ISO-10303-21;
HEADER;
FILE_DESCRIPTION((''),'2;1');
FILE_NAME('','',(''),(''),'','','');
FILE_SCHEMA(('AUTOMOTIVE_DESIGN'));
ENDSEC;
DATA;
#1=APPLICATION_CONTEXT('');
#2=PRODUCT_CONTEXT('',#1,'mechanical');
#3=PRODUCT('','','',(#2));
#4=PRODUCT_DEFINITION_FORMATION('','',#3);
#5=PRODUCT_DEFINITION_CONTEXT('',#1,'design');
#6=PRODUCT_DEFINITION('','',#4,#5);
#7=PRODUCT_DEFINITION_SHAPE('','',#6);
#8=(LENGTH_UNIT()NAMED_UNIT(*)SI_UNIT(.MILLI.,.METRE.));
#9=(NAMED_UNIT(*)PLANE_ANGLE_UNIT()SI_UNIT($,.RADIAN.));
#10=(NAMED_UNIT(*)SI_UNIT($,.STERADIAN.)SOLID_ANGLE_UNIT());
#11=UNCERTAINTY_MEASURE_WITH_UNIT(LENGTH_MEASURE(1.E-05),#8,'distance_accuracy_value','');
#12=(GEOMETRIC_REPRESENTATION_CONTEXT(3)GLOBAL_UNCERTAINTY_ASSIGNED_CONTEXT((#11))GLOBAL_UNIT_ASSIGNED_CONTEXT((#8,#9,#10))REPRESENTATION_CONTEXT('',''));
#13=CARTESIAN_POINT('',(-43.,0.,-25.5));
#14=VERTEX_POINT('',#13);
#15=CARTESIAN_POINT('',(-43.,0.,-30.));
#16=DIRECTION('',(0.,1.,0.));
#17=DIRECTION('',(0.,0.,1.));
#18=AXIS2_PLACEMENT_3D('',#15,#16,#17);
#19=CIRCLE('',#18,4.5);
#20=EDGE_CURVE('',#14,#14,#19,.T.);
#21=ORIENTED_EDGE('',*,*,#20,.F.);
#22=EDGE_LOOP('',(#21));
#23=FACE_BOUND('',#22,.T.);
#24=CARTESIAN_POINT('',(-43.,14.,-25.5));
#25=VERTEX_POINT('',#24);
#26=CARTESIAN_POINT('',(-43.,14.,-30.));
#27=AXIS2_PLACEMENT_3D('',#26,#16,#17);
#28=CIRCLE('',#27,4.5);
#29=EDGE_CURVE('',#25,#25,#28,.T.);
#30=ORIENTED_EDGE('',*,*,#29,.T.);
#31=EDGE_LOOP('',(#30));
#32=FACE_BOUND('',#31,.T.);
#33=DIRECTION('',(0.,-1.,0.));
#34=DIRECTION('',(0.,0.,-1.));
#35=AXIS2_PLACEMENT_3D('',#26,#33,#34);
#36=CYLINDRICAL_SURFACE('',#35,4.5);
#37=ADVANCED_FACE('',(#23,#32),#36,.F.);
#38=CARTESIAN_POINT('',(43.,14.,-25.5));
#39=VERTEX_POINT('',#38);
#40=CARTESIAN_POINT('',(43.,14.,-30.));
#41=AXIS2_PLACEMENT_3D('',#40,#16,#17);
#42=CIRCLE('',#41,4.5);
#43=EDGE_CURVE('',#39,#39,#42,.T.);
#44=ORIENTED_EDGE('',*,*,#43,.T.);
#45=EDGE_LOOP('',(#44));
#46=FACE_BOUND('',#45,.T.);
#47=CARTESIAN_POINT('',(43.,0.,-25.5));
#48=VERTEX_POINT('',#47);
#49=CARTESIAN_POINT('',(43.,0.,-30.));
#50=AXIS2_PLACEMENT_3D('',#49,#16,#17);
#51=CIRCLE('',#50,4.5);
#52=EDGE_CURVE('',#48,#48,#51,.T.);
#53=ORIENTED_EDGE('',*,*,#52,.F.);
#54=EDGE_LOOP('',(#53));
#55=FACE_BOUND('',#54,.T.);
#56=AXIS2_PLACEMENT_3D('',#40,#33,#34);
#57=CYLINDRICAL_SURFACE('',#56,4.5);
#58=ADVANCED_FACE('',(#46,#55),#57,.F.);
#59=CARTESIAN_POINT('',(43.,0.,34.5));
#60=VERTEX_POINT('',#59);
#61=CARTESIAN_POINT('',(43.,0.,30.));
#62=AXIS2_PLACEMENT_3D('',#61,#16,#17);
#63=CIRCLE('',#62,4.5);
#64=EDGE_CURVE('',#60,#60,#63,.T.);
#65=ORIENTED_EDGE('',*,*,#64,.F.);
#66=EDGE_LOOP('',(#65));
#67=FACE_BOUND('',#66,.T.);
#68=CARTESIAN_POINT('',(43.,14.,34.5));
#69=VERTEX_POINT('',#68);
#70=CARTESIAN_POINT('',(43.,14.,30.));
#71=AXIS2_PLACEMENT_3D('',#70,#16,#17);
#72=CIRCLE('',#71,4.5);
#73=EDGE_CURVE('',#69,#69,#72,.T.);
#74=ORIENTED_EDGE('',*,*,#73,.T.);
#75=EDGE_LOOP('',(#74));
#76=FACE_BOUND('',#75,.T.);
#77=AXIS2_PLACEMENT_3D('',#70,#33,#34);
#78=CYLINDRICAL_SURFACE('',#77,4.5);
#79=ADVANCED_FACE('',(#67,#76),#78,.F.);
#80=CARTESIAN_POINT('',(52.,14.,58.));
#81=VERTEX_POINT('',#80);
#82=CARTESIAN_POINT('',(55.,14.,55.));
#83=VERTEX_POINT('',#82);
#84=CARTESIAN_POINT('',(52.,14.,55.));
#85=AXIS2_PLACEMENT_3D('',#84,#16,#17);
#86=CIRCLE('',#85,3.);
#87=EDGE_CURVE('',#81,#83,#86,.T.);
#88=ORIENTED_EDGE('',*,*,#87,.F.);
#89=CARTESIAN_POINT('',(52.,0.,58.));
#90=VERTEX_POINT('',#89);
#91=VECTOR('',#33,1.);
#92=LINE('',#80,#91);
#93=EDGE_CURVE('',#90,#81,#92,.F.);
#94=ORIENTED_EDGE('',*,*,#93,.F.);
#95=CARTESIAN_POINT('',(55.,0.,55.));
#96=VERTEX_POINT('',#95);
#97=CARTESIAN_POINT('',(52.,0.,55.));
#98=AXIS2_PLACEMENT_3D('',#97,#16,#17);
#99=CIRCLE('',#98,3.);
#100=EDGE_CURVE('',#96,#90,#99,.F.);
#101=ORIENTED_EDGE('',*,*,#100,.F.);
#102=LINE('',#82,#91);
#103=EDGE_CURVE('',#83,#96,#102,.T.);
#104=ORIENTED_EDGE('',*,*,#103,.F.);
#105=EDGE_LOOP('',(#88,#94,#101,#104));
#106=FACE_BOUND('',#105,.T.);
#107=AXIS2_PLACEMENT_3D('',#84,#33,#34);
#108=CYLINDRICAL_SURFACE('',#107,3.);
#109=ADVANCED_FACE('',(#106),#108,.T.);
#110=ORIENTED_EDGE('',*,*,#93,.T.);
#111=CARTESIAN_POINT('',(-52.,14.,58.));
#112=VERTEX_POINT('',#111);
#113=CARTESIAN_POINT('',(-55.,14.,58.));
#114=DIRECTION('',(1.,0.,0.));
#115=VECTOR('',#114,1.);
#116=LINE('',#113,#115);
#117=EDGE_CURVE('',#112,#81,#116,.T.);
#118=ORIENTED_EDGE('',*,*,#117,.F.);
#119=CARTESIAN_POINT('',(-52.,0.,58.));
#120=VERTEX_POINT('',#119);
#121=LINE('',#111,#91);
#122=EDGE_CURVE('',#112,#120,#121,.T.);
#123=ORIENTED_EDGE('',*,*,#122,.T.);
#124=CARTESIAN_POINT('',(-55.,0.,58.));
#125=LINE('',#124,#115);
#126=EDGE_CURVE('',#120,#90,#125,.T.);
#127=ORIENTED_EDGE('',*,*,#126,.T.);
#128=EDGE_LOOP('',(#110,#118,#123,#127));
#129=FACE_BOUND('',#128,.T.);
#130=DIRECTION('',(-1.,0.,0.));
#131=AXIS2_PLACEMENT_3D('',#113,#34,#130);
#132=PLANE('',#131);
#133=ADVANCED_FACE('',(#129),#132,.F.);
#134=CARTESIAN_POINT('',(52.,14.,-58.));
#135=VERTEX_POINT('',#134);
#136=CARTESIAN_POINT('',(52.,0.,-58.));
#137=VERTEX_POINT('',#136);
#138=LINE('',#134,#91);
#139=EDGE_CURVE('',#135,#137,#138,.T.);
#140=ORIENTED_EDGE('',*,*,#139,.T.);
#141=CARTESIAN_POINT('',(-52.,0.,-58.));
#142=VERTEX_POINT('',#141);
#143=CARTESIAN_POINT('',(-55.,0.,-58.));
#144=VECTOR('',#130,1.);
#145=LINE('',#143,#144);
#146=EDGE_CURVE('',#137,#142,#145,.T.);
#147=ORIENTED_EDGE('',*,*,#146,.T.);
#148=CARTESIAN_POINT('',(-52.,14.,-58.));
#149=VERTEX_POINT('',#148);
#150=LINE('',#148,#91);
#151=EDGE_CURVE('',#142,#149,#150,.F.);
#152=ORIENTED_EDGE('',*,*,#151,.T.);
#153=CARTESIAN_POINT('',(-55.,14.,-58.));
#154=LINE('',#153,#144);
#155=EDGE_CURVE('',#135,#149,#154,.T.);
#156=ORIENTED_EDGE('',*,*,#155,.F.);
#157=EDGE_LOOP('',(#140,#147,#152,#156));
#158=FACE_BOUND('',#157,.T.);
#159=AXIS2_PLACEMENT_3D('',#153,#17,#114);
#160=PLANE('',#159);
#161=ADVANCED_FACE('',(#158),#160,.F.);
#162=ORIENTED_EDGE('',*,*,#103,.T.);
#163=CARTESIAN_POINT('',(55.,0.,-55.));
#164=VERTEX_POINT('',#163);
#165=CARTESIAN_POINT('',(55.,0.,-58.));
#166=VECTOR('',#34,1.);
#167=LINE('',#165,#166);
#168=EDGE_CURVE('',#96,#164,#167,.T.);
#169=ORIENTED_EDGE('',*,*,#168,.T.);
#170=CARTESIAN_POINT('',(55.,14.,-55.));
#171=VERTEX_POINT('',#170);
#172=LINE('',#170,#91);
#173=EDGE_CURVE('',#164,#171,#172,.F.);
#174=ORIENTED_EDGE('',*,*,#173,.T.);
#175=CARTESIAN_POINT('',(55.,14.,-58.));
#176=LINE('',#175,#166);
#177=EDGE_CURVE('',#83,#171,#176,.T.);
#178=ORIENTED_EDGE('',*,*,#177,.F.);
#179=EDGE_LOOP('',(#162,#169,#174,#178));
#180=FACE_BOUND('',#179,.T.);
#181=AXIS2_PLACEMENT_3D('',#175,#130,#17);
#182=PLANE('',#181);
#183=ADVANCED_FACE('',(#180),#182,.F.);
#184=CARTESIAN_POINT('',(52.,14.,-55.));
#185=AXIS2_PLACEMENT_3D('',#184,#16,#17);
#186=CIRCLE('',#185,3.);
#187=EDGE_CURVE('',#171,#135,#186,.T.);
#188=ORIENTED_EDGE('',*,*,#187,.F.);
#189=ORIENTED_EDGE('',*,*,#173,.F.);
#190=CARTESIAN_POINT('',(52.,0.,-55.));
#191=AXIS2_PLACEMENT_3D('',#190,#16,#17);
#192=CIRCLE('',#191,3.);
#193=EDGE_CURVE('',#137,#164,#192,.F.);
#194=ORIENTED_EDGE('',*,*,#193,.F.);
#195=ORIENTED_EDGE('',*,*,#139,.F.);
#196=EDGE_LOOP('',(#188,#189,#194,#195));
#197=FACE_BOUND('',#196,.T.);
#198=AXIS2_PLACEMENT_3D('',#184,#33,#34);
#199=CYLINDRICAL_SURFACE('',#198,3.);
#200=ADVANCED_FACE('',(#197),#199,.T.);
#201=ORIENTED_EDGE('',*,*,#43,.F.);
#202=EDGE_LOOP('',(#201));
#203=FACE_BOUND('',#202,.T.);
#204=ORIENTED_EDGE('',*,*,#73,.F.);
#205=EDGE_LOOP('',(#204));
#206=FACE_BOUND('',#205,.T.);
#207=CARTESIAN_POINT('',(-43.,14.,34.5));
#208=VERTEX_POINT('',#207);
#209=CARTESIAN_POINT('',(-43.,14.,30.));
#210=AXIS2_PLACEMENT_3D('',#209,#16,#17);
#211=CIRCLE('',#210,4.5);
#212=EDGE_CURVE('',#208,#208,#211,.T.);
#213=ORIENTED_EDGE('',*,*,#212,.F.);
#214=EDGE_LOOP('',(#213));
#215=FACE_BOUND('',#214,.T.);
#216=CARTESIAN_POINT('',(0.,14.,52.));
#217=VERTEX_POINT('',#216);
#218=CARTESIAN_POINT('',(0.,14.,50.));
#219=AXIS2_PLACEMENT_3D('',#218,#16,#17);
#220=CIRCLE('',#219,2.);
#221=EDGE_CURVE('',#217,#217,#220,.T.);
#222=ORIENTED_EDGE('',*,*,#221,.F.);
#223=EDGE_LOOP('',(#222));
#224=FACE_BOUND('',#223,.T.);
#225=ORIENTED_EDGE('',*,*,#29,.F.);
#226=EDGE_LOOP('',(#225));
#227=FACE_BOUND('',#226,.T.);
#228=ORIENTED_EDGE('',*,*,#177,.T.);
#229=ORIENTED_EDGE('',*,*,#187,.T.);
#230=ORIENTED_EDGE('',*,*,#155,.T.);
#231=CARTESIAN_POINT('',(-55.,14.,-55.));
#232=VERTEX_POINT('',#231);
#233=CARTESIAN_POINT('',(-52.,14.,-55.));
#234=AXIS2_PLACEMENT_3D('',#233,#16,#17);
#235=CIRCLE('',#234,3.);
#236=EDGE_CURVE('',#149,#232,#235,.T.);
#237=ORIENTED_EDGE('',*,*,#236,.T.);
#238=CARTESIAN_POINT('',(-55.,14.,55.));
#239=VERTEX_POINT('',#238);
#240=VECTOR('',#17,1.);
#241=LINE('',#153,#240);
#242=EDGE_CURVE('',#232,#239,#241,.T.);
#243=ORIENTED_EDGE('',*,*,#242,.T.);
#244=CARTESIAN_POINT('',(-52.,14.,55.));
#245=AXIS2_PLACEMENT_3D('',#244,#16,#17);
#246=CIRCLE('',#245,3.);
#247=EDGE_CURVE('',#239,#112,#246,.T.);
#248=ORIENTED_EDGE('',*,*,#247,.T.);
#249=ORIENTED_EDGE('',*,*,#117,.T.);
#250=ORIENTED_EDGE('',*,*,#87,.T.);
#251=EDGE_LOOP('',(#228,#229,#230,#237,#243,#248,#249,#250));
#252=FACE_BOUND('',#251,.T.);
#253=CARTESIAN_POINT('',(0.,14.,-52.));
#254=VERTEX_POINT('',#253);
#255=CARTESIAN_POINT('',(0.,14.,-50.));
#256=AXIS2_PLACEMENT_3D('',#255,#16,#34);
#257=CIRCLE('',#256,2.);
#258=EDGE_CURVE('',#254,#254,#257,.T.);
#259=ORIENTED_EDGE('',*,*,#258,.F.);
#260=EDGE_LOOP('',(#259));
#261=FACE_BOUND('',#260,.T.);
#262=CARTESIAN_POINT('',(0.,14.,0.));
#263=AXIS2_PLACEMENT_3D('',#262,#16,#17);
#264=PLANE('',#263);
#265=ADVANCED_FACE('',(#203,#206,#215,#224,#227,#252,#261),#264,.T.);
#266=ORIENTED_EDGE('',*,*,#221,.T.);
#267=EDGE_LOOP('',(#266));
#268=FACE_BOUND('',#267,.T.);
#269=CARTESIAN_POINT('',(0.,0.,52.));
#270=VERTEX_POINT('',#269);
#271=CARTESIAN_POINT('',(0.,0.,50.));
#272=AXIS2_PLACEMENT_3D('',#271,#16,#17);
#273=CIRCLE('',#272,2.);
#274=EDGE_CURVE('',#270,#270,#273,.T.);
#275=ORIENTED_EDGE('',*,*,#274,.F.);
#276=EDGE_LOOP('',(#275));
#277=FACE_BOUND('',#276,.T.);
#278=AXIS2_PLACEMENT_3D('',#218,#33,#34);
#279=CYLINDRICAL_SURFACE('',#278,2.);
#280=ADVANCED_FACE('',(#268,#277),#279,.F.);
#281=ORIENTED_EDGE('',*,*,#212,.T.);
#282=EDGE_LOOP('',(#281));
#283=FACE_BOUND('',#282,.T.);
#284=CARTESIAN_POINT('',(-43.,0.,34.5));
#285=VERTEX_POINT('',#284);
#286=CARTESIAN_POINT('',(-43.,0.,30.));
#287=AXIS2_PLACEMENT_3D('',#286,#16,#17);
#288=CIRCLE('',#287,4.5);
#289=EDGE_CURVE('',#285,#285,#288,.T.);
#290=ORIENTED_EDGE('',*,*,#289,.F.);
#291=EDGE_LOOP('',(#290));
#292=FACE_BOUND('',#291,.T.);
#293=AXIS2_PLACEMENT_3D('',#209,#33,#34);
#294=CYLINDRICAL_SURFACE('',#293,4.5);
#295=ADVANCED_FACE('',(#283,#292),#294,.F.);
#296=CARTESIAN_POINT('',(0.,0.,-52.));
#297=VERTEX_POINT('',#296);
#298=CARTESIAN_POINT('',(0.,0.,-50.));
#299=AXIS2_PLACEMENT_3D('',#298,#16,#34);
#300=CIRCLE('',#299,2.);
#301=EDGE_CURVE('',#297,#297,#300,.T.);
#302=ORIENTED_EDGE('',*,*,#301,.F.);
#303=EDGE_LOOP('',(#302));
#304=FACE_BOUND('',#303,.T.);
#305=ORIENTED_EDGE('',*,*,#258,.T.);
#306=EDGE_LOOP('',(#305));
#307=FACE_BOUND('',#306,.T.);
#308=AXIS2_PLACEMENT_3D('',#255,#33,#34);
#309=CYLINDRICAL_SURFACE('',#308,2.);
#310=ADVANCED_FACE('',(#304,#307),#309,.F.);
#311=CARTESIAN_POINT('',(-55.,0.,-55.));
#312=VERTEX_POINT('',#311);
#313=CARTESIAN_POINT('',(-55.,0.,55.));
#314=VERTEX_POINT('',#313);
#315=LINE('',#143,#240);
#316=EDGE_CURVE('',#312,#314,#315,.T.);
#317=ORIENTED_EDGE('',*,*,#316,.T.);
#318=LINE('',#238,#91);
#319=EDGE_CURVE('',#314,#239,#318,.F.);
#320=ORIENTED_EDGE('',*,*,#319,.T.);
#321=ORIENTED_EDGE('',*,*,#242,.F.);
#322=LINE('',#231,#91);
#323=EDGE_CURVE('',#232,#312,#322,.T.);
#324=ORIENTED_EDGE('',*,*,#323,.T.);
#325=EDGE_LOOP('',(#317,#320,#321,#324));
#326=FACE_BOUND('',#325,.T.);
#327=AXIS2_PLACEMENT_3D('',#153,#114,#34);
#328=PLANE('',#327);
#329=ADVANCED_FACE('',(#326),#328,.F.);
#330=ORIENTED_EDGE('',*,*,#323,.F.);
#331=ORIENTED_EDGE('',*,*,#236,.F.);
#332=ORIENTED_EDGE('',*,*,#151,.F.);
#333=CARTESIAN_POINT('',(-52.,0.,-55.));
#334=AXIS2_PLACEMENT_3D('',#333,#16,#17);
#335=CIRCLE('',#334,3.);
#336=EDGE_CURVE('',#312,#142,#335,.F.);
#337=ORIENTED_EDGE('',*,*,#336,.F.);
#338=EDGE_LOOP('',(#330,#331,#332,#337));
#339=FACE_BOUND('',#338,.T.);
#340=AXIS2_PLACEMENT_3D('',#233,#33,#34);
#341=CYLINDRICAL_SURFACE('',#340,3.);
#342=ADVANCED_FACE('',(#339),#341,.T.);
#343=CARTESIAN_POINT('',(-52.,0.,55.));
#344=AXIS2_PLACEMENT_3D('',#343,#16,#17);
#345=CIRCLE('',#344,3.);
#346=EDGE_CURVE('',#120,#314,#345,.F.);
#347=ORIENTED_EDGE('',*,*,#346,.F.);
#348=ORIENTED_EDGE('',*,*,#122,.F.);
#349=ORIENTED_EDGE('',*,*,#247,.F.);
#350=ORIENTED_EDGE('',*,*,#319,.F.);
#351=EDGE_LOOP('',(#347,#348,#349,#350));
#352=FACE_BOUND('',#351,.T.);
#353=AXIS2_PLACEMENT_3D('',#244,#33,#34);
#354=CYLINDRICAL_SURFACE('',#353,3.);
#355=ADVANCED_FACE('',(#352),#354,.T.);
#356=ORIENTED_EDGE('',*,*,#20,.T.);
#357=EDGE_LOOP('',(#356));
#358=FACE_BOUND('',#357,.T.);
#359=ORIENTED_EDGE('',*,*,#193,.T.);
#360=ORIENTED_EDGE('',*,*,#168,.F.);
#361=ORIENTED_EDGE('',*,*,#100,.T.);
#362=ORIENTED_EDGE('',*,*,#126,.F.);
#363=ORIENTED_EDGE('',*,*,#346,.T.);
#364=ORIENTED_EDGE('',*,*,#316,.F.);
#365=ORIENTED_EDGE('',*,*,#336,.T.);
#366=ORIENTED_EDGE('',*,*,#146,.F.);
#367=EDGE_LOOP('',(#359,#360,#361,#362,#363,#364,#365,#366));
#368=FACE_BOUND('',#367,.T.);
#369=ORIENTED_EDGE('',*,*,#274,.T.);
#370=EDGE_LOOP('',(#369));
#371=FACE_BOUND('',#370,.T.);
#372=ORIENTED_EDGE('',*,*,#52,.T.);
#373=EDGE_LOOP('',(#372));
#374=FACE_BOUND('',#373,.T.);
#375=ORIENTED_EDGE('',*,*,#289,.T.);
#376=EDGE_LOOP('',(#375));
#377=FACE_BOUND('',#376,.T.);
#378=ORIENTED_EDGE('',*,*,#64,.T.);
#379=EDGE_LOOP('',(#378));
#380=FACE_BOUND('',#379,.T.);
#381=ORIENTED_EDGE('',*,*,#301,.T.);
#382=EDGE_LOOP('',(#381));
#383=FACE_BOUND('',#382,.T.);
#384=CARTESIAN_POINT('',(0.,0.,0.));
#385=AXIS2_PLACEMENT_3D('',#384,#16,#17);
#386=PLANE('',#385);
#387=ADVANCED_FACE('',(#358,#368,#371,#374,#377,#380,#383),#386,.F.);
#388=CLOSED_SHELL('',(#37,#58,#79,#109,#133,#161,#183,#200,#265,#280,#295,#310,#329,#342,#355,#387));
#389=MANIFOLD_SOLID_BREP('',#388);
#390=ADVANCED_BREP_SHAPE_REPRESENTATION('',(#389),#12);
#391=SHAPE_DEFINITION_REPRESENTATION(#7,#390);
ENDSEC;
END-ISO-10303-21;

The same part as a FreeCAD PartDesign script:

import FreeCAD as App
import Part
import Sketcher
Q = App.Units.Quantity


def edges_at(feature, points):
    """Names of the edges that pass closest to the given points."""
    edges = feature.Shape.Edges
    near = lambda p: min(range(len(edges)), key=lambda i: edges[i].distToShape(Part.Vertex(*p))[0])
    return sorted({f"Edge{near(p) + 1}" for p in points})

doc = App.newDocument("Part")
body = doc.addObject("PartDesign::Body", "Body")

sketch1 = doc.addObject("Sketcher::SketchObject", "Sketch")
body.addObject(sketch1)
sketch1.AttachmentSupport = (doc.XZ_Plane, [""])
sketch1.MapMode = "FlatFace"
sketch1.addGeometry(Part.LineSegment(App.Vector(-55, -58, 0), App.Vector(-55, 58, 0)), False)
sketch1.addGeometry(Part.LineSegment(App.Vector(-55, 58, 0), App.Vector(55, 58, 0)), False)
sketch1.addGeometry(Part.LineSegment(App.Vector(55, 58, 0), App.Vector(55, -58, 0)), False)
sketch1.addGeometry(Part.LineSegment(App.Vector(55, -58, 0), App.Vector(-55, -58, 0)), False)
sketch1.addGeometry(Part.Circle(App.Vector(-43, 30, 0), App.Vector(0, 0, 1), 4.5), False)
sketch1.addGeometry(Part.Circle(App.Vector(0, 50, 0), App.Vector(0, 0, 1), 2), False)
sketch1.addGeometry(Part.Circle(App.Vector(43, 30, 0), App.Vector(0, 0, 1), 4.5), False)
sketch1.addGeometry(Part.Circle(App.Vector(-43, -30, 0), App.Vector(0, 0, 1), 4.5), False)
sketch1.addGeometry(Part.Circle(App.Vector(0, -50, 0), App.Vector(0, 0, 1), 2), False)
sketch1.addGeometry(Part.Circle(App.Vector(43, -30, 0), App.Vector(0, 0, 1), 4.5), False)
sketch1.addConstraint(Sketcher.Constraint("Coincident", 0, 2, 1, 1))
sketch1.addConstraint(Sketcher.Constraint("Coincident", 1, 2, 2, 1))
sketch1.addConstraint(Sketcher.Constraint("Coincident", 2, 2, 3, 1))
sketch1.addConstraint(Sketcher.Constraint("Coincident", 3, 2, 0, 1))
sketch1.addConstraint(Sketcher.Constraint("Vertical", 0))
sketch1.addConstraint(Sketcher.Constraint("Horizontal", 1))
sketch1.addConstraint(Sketcher.Constraint("Vertical", 2))
sketch1.addConstraint(Sketcher.Constraint("Horizontal", 3))
sketch1.addConstraint(Sketcher.Constraint("Equal", 4, 6))
sketch1.addConstraint(Sketcher.Constraint("Equal", 6, 7))
sketch1.addConstraint(Sketcher.Constraint("Equal", 5, 8))
sketch1.addConstraint(Sketcher.Constraint("Equal", 7, 9))
sketch1.addConstraint(Sketcher.Constraint("Symmetric", 6, 3, 7, 3, -1, 1))
sketch1.addConstraint(Sketcher.Constraint("Symmetric", 5, 3, 8, 3, -1, 1))
sketch1.addConstraint(Sketcher.Constraint("Symmetric", 4, 3, 9, 3, -1, 1))
sketch1.addConstraint(Sketcher.Constraint("Symmetric", 0, 2, 2, 2, -1, 1))
sketch1.addConstraint(Sketcher.Constraint("Symmetric", 4, 3, 6, 3, -2))
sketch1.addConstraint(Sketcher.Constraint("PointOnObject", 5, 3, -2))
sketch1.addConstraint(Sketcher.Constraint("Diameter", 4, Q("9 mm")))
sketch1.addConstraint(Sketcher.Constraint("Diameter", 5, Q("4 mm")))
sketch1.addConstraint(Sketcher.Constraint("DistanceX", 1, 1, 1, 2, Q("110 mm")))
sketch1.addConstraint(Sketcher.Constraint("DistanceY", 0, 1, 0, 2, Q("116 mm")))
sketch1.addConstraint(Sketcher.Constraint("DistanceX", 4, 3, -1, 1, Q("43 mm")))
sketch1.addConstraint(Sketcher.Constraint("DistanceY", -1, 1, 4, 3, Q("30 mm")))
sketch1.addConstraint(Sketcher.Constraint("DistanceY", -1, 1, 5, 3, Q("50 mm")))
pad1 = doc.addObject("PartDesign::Pad", "Pad")
body.addObject(pad1)
pad1.Profile = sketch1
pad1.Length = 14
pad1.Reversed = True
doc.recompute()

fillet = doc.addObject("PartDesign::Fillet", "Fillet")
body.addObject(fillet)
fillet.Base = (pad1, edges_at(pad1, [
    (-55, 7, -58),
    (55, 7, -58),
    (55, 7, 58),
    (-55, 7, 58),
]))
fillet.Radius = 3

doc.recompute()
